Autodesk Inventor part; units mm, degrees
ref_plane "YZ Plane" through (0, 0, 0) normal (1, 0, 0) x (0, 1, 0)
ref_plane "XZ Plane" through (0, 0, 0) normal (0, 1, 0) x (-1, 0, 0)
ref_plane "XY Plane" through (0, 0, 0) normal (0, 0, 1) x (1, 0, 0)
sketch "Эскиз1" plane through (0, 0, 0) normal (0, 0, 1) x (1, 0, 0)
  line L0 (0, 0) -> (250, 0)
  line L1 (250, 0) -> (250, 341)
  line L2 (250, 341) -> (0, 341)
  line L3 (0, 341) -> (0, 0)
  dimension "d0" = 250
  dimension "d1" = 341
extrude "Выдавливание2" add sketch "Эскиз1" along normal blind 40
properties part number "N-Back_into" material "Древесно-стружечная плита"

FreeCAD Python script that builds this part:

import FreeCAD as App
import Part
import Sketcher
from FreeCAD import Vector
Q = App.Units.Quantity

doc = App.newDocument("Part")
body = doc.addObject("PartDesign::Body", "Body")

# Sketch on XY plane
sketch1 = doc.addObject("Sketcher::SketchObject", "Sketch")
body.addObject(sketch1)
sketch1.AttachmentSupport = (doc.XY_Plane, [""])
sketch1.MapMode = "FlatFace"
sketch1.addGeometry([
    Part.LineSegment(Vector(0, 341, 0), Vector(0, 0, 0)),
    Part.LineSegment(Vector(0, 0, 0), Vector(250, 0, 0)),
    Part.LineSegment(Vector(250, 0, 0), Vector(250, 341, 0)),
    Part.LineSegment(Vector(250, 341, 0), Vector(0, 341, 0)),
], False)
sketch1.addConstraint([
    Sketcher.Constraint("Coincident", 0, 2, 1, 1),
    Sketcher.Constraint("Coincident", 1, 2, 2, 1),
    Sketcher.Constraint("Coincident", 2, 2, 3, 1),
    Sketcher.Constraint("Coincident", 3, 2, 0, 1),
    Sketcher.Constraint("Vertical", 0),
    Sketcher.Constraint("Horizontal", 1),
    Sketcher.Constraint("Vertical", 2),
    Sketcher.Constraint("Horizontal", 3),
    Sketcher.Constraint("Coincident", 0, 2, -1, 1),
    Sketcher.Constraint("DistanceX", 1, 1, 1, 2, Q("250 mm")),
    Sketcher.Constraint("DistanceY", 0, 2, 0, 1, Q("341 mm")),
])
pad1 = doc.addObject("PartDesign::Pad", "Pad")
body.addObject(pad1)
pad1.Profile = sketch1
pad1.Length = 40

doc.recompute()
